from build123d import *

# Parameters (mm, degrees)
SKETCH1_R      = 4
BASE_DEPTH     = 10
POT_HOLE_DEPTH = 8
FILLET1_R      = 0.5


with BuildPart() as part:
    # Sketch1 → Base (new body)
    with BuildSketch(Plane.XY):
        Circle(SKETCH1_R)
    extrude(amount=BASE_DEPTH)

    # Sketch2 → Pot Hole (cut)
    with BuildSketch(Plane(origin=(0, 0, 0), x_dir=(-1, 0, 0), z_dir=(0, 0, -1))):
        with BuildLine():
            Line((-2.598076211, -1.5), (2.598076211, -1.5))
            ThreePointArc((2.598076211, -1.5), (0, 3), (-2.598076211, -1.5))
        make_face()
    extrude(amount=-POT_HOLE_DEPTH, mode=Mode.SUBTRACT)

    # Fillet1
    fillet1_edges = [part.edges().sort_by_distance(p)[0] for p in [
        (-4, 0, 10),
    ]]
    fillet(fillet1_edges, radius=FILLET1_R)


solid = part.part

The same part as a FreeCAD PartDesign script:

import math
import FreeCAD as App
import Part
import Sketcher


def edges_at(feature, points):
    """Names of the edges that pass closest to the given points."""
    edges = feature.Shape.Edges
    near = lambda p: min(range(len(edges)), key=lambda i: edges[i].distToShape(Part.Vertex(*p))[0])
    return sorted({f"Edge{near(p) + 1}" for p in points})

doc = App.newDocument("Part")
params = doc.addObject("Spreadsheet::Sheet", "Params")
for row, (alias, value) in enumerate([
    ("sketch1_diameter", "8 mm"),
    ("pad1_length", "10 mm"),
    ("sketch2_radius", "3 mm"),
    ("pocket1_length", "8 mm"),
    ("fillet_radius", "0.5 mm"),
], start=1):
    params.set(f"A{row}", alias)
    params.set(f"B{row}", "=" + value)
    params.setAlias(f"B{row}", alias)

body = doc.addObject("PartDesign::Body", "Body")

# Sketch on XY plane
sketch1 = body.newObject("Sketcher::SketchObject", "Sketch")
sketch1.AttachmentSupport = (doc.getObject("XY_Plane"), [""])
sketch1.MapMode = "FlatFace"
sketch1.addGeometry(Part.Circle(App.Vector(0, 0, 0), App.Vector(0, 0, 1), 4), False)
sketch1.addConstraint([
    Sketcher.Constraint("Coincident", 0, 3, -1, 1),
    Sketcher.Constraint("Diameter", 0, 8.0),
])
sketch1.setExpression("Constraints[1]", "Params.sketch1_diameter")
pad1 = body.newObject("PartDesign::Pad", "Pad")
pad1.Profile = sketch1
pad1.setExpression("Length", "Params.pad1_length")

# Sketch on XY plane
sketch2 = body.newObject("Sketcher::SketchObject", "Sketch001")
sketch2.AttachmentSupport = (doc.getObject("XY_Plane"), [""])
sketch2.MapMode = "FlatFace"
sketch2.addGeometry([
    Part.LineSegment(App.Vector(2.598076, -1.5, 0), App.Vector(-2.598076, -1.5, 0)),
    Part.ArcOfCircle(Part.Circle(App.Vector(0, 0, 0), App.Vector(0, 0, 1), 3), math.radians(-30), math.radians(210)),
], False)
sketch2.addConstraint([
    Sketcher.Constraint("Coincident", 0, 1, 1, 1),
    Sketcher.Constraint("Coincident", 1, 2, 0, 2),
    Sketcher.Constraint("Horizontal", 0),
    Sketcher.Constraint("Coincident", 1, 3, -1, 1),
    Sketcher.Constraint("Radius", 1, 3.0),
    Sketcher.Constraint("DistanceY", 0, 1, -1, 1, 1.5),
])
sketch2.setExpression("Constraints[4]", "Params.sketch2_radius")
pocket1 = body.newObject("PartDesign::Pocket", "Pocket")
pocket1.Profile = sketch2
pocket1.setExpression("Length", "Params.pocket1_length")
pocket1.Reversed = True
doc.recompute()

fillet = body.newObject("PartDesign::Fillet", "Fillet")
fillet.Base = (pocket1, edges_at(pocket1, [(-4, 0, 10)]))
fillet.setExpression("Radius", "Params.fillet_radius")

doc.recompute()
